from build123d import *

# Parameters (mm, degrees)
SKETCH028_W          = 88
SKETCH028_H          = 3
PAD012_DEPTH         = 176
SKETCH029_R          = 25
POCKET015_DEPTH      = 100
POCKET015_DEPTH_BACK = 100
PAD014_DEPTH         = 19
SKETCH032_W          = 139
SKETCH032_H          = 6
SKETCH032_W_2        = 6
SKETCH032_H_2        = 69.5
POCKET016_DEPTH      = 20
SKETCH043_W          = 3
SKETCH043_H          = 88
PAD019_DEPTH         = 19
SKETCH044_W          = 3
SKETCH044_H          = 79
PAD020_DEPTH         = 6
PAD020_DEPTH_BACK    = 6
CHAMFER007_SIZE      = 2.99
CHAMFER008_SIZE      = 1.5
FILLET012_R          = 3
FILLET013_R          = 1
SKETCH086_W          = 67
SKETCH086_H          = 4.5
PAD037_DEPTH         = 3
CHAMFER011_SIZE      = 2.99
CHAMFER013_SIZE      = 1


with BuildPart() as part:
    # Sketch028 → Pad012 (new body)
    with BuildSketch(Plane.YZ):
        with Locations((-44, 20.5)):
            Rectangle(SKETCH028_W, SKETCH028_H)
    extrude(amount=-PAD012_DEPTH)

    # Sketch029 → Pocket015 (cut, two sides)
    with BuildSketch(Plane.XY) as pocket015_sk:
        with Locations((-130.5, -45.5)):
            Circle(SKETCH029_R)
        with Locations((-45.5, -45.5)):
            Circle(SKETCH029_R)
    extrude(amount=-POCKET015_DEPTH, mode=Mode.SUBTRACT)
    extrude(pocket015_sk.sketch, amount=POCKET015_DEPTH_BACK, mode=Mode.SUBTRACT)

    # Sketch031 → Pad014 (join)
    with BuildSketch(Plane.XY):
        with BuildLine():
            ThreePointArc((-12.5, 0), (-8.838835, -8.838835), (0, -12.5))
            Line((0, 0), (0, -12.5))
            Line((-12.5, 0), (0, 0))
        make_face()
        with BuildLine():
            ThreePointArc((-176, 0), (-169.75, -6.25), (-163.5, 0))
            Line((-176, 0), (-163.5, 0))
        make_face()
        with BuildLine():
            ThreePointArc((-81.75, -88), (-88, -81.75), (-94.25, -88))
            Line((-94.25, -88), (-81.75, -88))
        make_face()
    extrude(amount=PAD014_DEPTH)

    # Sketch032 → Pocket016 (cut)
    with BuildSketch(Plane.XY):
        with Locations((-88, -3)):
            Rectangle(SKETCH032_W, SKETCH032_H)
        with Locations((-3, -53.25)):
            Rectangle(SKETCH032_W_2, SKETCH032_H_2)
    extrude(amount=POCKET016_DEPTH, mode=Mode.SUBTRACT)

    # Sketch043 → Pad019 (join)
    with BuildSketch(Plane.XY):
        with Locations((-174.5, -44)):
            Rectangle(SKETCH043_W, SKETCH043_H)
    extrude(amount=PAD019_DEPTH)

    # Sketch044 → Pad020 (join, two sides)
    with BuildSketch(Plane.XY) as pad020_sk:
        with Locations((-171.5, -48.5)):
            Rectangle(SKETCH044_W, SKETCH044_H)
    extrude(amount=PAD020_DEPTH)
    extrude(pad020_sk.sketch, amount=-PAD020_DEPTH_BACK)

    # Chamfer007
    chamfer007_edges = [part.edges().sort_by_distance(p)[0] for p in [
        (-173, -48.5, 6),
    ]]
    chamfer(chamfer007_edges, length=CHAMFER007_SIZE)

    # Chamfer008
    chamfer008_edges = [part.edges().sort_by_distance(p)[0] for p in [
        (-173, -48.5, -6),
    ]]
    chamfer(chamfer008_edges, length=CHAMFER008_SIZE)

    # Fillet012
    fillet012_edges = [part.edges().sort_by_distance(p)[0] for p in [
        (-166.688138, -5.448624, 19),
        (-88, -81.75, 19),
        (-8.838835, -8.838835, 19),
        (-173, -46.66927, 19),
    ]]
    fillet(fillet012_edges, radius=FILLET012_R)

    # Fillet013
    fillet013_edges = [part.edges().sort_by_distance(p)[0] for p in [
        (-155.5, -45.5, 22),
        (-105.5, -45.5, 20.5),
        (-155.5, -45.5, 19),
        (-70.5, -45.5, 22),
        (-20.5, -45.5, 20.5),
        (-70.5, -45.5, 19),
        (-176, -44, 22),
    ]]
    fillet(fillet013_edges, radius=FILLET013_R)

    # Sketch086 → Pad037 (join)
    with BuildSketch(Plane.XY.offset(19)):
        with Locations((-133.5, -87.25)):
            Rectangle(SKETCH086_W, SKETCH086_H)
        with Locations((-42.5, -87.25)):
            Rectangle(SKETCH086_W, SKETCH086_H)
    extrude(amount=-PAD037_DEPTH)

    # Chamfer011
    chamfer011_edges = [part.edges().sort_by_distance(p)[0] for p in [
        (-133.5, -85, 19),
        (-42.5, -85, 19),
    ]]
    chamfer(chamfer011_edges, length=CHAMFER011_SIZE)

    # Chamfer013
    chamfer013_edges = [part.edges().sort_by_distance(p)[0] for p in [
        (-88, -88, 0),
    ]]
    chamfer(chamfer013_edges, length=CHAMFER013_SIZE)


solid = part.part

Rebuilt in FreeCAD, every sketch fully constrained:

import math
import FreeCAD as App
import Part
import Sketcher
from FreeCAD import Vector
Q = App.Units.Quantity


def edges_at(feature, points):
    """Names of the edges that pass closest to the given points."""
    edges = feature.Shape.Edges
    near = lambda p: min(range(len(edges)), key=lambda i: edges[i].distToShape(Part.Vertex(*p))[0])
    return sorted({f"Edge{near(p) + 1}" for p in points})


def add_polygon(sketch, points):
    """Adds a closed chain of lines whose ends are joined by coincident constraints."""
    first, n = sketch.GeometryCount, len(points)
    for a, b in zip(points, points[1:] + points[:1]):
        sketch.addGeometry(Part.LineSegment(App.Vector(*a, 0), App.Vector(*b, 0)), False)
    for i in range(n):
        sketch.addConstraint(Sketcher.Constraint("Coincident", first + i, 2, first + (i + 1) % n, 1))

doc = App.newDocument("Part")
body = doc.addObject("PartDesign::Body", "Body")

sketch1 = body.newObject("Sketcher::SketchObject", "Sketch")
sketch1.AttachmentSupport = (doc.getObject("YZ_Plane"), [""])
sketch1.MapMode = "FlatFace"
add_polygon(sketch1, [(-88, 22), (-88, 19), (0, 19), (0, 22)])
sketch1.addConstraint(Sketcher.Constraint("Vertical", 0))
sketch1.addConstraint(Sketcher.Constraint("Horizontal", 1))
sketch1.addConstraint(Sketcher.Constraint("Vertical", 2))
sketch1.addConstraint(Sketcher.Constraint("Horizontal", 3))
sketch1.addConstraint(Sketcher.Constraint("PointOnObject", 1, 2, -2))
sketch1.addConstraint(Sketcher.Constraint("DistanceX", 1, 1, 1, 2, Q("88 mm")))
sketch1.addConstraint(Sketcher.Constraint("DistanceY", 0, 2, 0, 1, Q("3 mm")))
sketch1.addConstraint(Sketcher.Constraint("DistanceY", -1, 1, 0, 2, Q("19 mm")))
pad1 = body.newObject("PartDesign::Pad", "Pad")
pad1.Profile = sketch1
pad1.Length = 176
pad1.Reversed = True

sketch2 = body.newObject("Sketcher::SketchObject", "Sketch001")
sketch2.AttachmentSupport = (doc.getObject("XY_Plane"), [""])
sketch2.MapMode = "FlatFace"
sketch2.addGeometry(Part.Circle(Vector(-130.5, -45.5, 0), Vector(0, 0, 1), 25), False)
sketch2.addGeometry(Part.Circle(Vector(-45.5, -45.5, 0), Vector(0, 0, 1), 25), False)
sketch2.addConstraint(Sketcher.Constraint("Equal", 0, 1))
sketch2.addConstraint(Sketcher.Constraint("Horizontal", 0, 3, 1, 3))
sketch2.addConstraint(Sketcher.Constraint("Diameter", 0, Q("50 mm")))
sketch2.addConstraint(Sketcher.Constraint("DistanceX", 0, 3, 1, 3, Q("85 mm")))
sketch2.addConstraint(Sketcher.Constraint("DistanceX", 0, 3, -1, 1, Q("130.5 mm")))
sketch2.addConstraint(Sketcher.Constraint("DistanceY", 0, 3, -1, 1, Q("45.5 mm")))
pocket1 = body.newObject("PartDesign::Pocket", "Pocket")
pocket1.Profile = sketch2
pocket1.Type = "ThroughAll"
pocket1.Midplane = True

sketch3 = body.newObject("Sketcher::SketchObject", "Sketch002")
sketch3.AttachmentSupport = (doc.getObject("XY_Plane"), [""])
sketch3.MapMode = "FlatFace"
sketch3.addGeometry(Part.ArcOfCircle(Part.Circle(Vector(-0.000001, -0.000001, 0), Vector(0, 0, 1), 12.499999), math.radians(179.999996), math.radians(270.000004)), False)
sketch3.addGeometry(Part.LineSegment(Vector(0, -12.5, 0), Vector(0, 0, 0)), False)
sketch3.addGeometry(Part.LineSegment(Vector(0, 0, 0), Vector(-12.5, 0, 0)), False)
sketch3.addGeometry(Part.ArcOfCircle(Part.Circle(Vector(-169.75, 0, 0), Vector(0, 0, 1), 6.25), math.radians(180), math.radians(360)), False)
sketch3.addGeometry(Part.LineSegment(Vector(-163.5, 0, 0), Vector(-176, 0, 0)), False)
sketch3.addGeometry(Part.ArcOfCircle(Part.Circle(Vector(-88, -88, 0), Vector(0, 0, 1), 6.25), math.radians(0), math.radians(180)), False)
sketch3.addGeometry(Part.LineSegment(Vector(-94.25, -88, 0), Vector(-81.75, -88, 0)), False)
sketch3.addConstraint(Sketcher.Constraint("Coincident", 0, 2, 1, 1))
sketch3.addConstraint(Sketcher.Constraint("Coincident", 1, 2, 2, 1))
sketch3.addConstraint(Sketcher.Constraint("Coincident", 2, 2, 0, 1))
sketch3.addConstraint(Sketcher.Constraint("Coincident", 3, 1, 4, 2))
sketch3.addConstraint(Sketcher.Constraint("Coincident", 4, 1, 3, 2))
sketch3.addConstraint(Sketcher.Constraint("Coincident", 5, 1, 6, 2))
sketch3.addConstraint(Sketcher.Constraint("Coincident", 6, 1, 5, 2))
sketch3.addConstraint(Sketcher.Constraint("Vertical", 1))
sketch3.addConstraint(Sketcher.Constraint("Horizontal", 2))
sketch3.addConstraint(Sketcher.Constraint("Horizontal", 4))
sketch3.addConstraint(Sketcher.Constraint("Horizontal", 6))
sketch3.addConstraint(Sketcher.Constraint("Coincident", 0, 3, -1, 1))
sketch3.addConstraint(Sketcher.Constraint("Coincident", 1, 2, -1, 1))
sketch3.addConstraint(Sketcher.Constraint("Equal", 3, 5))
sketch3.addConstraint(Sketcher.Constraint("PointOnObject", 3, 3, -1))
sketch3.addConstraint(Sketcher.Constraint("PointOnObject", 3, 1, -1))
sketch3.addConstraint(Sketcher.Constraint("Equal", 2, 4))
sketch3.addConstraint(Sketcher.Constraint("Radius", 0, Q("12.499999 mm")))
sketch3.addConstraint(Sketcher.Constraint("DistanceX", 5, 3, -1, 1, Q("88 mm")))
sketch3.addConstraint(Sketcher.Constraint("DistanceY", 5, 3, -1, 1, Q("88 mm")))
sketch3.addConstraint(Sketcher.Constraint("DistanceX", 3, 1, -1, 1, Q("176 mm")))
sketch3.addConstraint(Sketcher.Constraint("DistanceY", 5, 1, -1, 1, Q("88 mm")))
pad2 = body.newObject("PartDesign::Pad", "Pad001")
pad2.Profile = sketch3
pad2.Length = 19

sketch4 = body.newObject("Sketcher::SketchObject", "Sketch003")
sketch4.AttachmentSupport = (doc.getObject("XY_Plane"), [""])
sketch4.MapMode = "FlatFace"
add_polygon(sketch4, [(-157.5, 0), (-157.5, -6), (-18.5, -6), (-18.5, 0)])
add_polygon(sketch4, [(-6, -18.5), (-6, -88), (0, -88), (0, -18.5)])
sketch4.addConstraint(Sketcher.Constraint("Vertical", 0))
sketch4.addConstraint(Sketcher.Constraint("Horizontal", 1))
sketch4.addConstraint(Sketcher.Constraint("Vertical", 2))
sketch4.addConstraint(Sketcher.Constraint("Horizontal", 3))
sketch4.addConstraint(Sketcher.Constraint("Vertical", 4))
sketch4.addConstraint(Sketcher.Constraint("Horizontal", 5))
sketch4.addConstraint(Sketcher.Constraint("Vertical", 6))
sketch4.addConstraint(Sketcher.Constraint("Horizontal", 7))
sketch4.addConstraint(Sketcher.Constraint("PointOnObject", 2, 2, -1))
sketch4.addConstraint(Sketcher.Constraint("PointOnObject", 5, 2, -2))
sketch4.addConstraint(Sketcher.Constraint("Equal", 7, 0))
sketch4.addConstraint(Sketcher.Constraint("DistanceX", 1, 1, 1, 2, Q("139 mm")))
sketch4.addConstraint(Sketcher.Constraint("DistanceX", 5, 1, 5, 2, Q("6 mm")))
sketch4.addConstraint(Sketcher.Constraint("DistanceY", 4, 2, 4, 1, Q("69.5 mm")))
sketch4.addConstraint(Sketcher.Constraint("DistanceY", 4, 2, -1, 1, Q("88 mm")))
sketch4.addConstraint(Sketcher.Constraint("DistanceX", 0, 2, -1, 1, Q("157.5 mm")))
pocket2 = body.newObject("PartDesign::Pocket", "Pocket001")
pocket2.Profile = sketch4
pocket2.Length = 20
pocket2.Reversed = True

sketch5 = body.newObject("Sketcher::SketchObject", "Sketch004")
sketch5.AttachmentSupport = (doc.getObject("XY_Plane"), [""])
sketch5.MapMode = "FlatFace"
add_polygon(sketch5, [(-176, 0), (-176, -88), (-173, -88), (-173, 0)])
sketch5.addConstraint(Sketcher.Constraint("Vertical", 0))
sketch5.addConstraint(Sketcher.Constraint("Horizontal", 1))
sketch5.addConstraint(Sketcher.Constraint("Vertical", 2))
sketch5.addConstraint(Sketcher.Constraint("Horizontal", 3))
sketch5.addConstraint(Sketcher.Constraint("PointOnObject", 2, 2, -1))
sketch5.addConstraint(Sketcher.Constraint("DistanceX", 1, 1, 1, 2, Q("3 mm")))
sketch5.addConstraint(Sketcher.Constraint("DistanceY", 0, 2, 0, 1, Q("88 mm")))
sketch5.addConstraint(Sketcher.Constraint("DistanceX", 0, 2, -1, 1, Q("176 mm")))
pad3 = body.newObject("PartDesign::Pad", "Pad002")
pad3.Profile = sketch5
pad3.Length = 19

sketch6 = body.newObject("Sketcher::SketchObject", "Sketch005")
sketch6.AttachmentSupport = (doc.getObject("XY_Plane"), [""])
sketch6.MapMode = "FlatFace"
add_polygon(sketch6, [(-173, -9), (-173, -88), (-170, -88), (-170, -9)])
sketch6.addConstraint(Sketcher.Constraint("Vertical", 0))
sketch6.addConstraint(Sketcher.Constraint("Horizontal", 1))
sketch6.addConstraint(Sketcher.Constraint("Vertical", 2))
sketch6.addConstraint(Sketcher.Constraint("Horizontal", 3))
sketch6.addConstraint(Sketcher.Constraint("DistanceX", 1, 1, 1, 2, Q("3 mm")))
sketch6.addConstraint(Sketcher.Constraint("DistanceY", 0, 2, 0, 1, Q("79 mm")))
sketch6.addConstraint(Sketcher.Constraint("DistanceX", 0, 2, -1, 1, Q("173 mm")))
sketch6.addConstraint(Sketcher.Constraint("DistanceY", 0, 2, -1, 1, Q("88 mm")))
pad4 = body.newObject("PartDesign::Pad", "Pad003")
pad4.Profile = sketch6
pad4.Type = "TwoLengths"
pad4.Length = 6
pad4.Length2 = 6
doc.recompute()

chamfer = body.newObject("PartDesign::Chamfer", "Chamfer")
chamfer.Base = (pad4, edges_at(pad4, [(-173, -48.5, 6)]))
chamfer.Size = 2.99
doc.recompute()

chamfer2 = body.newObject("PartDesign::Chamfer", "Chamfer001")
chamfer2.Base = (chamfer, edges_at(chamfer, [(-173, -48.5, -6)]))
chamfer2.Size = 1.5
doc.recompute()

fillet = body.newObject("PartDesign::Fillet", "Fillet")
fillet.Base = (chamfer2, edges_at(chamfer2, [
    (-166.688, -5.449, 19),
    (-88, -81.75, 19),
    (-8.839, -8.839, 19),
    (-173, -46.669, 19),
]))
fillet.Radius = 3
doc.recompute()

fillet2 = body.newObject("PartDesign::Fillet", "Fillet001")
fillet2.Base = (fillet, edges_at(fillet, [
    (-155.5, -45.5, 22),
    (-105.5, -45.5, 20.5),
    (-155.5, -45.5, 19),
    (-70.5, -45.5, 22),
    (-20.5, -45.5, 20.5),
    (-70.5, -45.5, 19),
    (-176, -44, 22),
]))
fillet2.Radius = 1

sketch7 = body.newObject("Sketcher::SketchObject", "Sketch006")
sketch7.AttachmentSupport = (doc.getObject("XY_Plane"), [""])
sketch7.MapMode = "FlatFace"
sketch7.AttachmentOffset = App.Placement(Vector(0, 0, 19), App.Rotation())
add_polygon(sketch7, [(-167, -85), (-167, -89.5), (-100, -89.5), (-100, -85)])
add_polygon(sketch7, [(-76, -85), (-76, -89.5), (-9, -89.5), (-9, -85)])
sketch7.addConstraint(Sketcher.Constraint("Vertical", 0))
sketch7.addConstraint(Sketcher.Constraint("Horizontal", 1))
sketch7.addConstraint(Sketcher.Constraint("Vertical", 2))
sketch7.addConstraint(Sketcher.Constraint("Horizontal", 3))
sketch7.addConstraint(Sketcher.Constraint("Vertical", 4))
sketch7.addConstraint(Sketcher.Constraint("Horizontal", 5))
sketch7.addConstraint(Sketcher.Constraint("Vertical", 6))
sketch7.addConstraint(Sketcher.Constraint("Horizontal", 7))
sketch7.addConstraint(Sketcher.Constraint("Horizontal", 1, 2, 4, 2))
sketch7.addConstraint(Sketcher.Constraint("Horizontal", 3, 2, 6, 2))
sketch7.addConstraint(Sketcher.Constraint("Equal", 3, 5))
sketch7.addConstraint(Sketcher.Constraint("DistanceX", 1, 1, 1, 2, Q("67 mm")))
sketch7.addConstraint(Sketcher.Constraint("DistanceY", 0, 2, 0, 1, Q("4.5 mm")))
sketch7.addConstraint(Sketcher.Constraint("DistanceX", 0, 2, -1, 1, Q("167 mm")))
sketch7.addConstraint(Sketcher.Constraint("DistanceY", 2, 2, -1, 1, Q("85 mm")))
sketch7.addConstraint(Sketcher.Constraint("DistanceX", 4, 2, -1, 1, Q("76 mm")))
pad5 = body.newObject("PartDesign::Pad", "Pad004")
pad5.Profile = sketch7
pad5.Length = 3
pad5.Reversed = True
doc.recompute()

chamfer3 = body.newObject("PartDesign::Chamfer", "Chamfer002")
chamfer3.Base = (pad5, edges_at(pad5, [(-133.5, -85, 19), (-42.5, -85, 19)]))
chamfer3.Size = 2.99
doc.recompute()

chamfer4 = body.newObject("PartDesign::Chamfer", "Chamfer003")
chamfer4.Base = (chamfer3, edges_at(chamfer3, [(-88, -88, 0)]))
chamfer4.Size = 1

doc.recompute()
